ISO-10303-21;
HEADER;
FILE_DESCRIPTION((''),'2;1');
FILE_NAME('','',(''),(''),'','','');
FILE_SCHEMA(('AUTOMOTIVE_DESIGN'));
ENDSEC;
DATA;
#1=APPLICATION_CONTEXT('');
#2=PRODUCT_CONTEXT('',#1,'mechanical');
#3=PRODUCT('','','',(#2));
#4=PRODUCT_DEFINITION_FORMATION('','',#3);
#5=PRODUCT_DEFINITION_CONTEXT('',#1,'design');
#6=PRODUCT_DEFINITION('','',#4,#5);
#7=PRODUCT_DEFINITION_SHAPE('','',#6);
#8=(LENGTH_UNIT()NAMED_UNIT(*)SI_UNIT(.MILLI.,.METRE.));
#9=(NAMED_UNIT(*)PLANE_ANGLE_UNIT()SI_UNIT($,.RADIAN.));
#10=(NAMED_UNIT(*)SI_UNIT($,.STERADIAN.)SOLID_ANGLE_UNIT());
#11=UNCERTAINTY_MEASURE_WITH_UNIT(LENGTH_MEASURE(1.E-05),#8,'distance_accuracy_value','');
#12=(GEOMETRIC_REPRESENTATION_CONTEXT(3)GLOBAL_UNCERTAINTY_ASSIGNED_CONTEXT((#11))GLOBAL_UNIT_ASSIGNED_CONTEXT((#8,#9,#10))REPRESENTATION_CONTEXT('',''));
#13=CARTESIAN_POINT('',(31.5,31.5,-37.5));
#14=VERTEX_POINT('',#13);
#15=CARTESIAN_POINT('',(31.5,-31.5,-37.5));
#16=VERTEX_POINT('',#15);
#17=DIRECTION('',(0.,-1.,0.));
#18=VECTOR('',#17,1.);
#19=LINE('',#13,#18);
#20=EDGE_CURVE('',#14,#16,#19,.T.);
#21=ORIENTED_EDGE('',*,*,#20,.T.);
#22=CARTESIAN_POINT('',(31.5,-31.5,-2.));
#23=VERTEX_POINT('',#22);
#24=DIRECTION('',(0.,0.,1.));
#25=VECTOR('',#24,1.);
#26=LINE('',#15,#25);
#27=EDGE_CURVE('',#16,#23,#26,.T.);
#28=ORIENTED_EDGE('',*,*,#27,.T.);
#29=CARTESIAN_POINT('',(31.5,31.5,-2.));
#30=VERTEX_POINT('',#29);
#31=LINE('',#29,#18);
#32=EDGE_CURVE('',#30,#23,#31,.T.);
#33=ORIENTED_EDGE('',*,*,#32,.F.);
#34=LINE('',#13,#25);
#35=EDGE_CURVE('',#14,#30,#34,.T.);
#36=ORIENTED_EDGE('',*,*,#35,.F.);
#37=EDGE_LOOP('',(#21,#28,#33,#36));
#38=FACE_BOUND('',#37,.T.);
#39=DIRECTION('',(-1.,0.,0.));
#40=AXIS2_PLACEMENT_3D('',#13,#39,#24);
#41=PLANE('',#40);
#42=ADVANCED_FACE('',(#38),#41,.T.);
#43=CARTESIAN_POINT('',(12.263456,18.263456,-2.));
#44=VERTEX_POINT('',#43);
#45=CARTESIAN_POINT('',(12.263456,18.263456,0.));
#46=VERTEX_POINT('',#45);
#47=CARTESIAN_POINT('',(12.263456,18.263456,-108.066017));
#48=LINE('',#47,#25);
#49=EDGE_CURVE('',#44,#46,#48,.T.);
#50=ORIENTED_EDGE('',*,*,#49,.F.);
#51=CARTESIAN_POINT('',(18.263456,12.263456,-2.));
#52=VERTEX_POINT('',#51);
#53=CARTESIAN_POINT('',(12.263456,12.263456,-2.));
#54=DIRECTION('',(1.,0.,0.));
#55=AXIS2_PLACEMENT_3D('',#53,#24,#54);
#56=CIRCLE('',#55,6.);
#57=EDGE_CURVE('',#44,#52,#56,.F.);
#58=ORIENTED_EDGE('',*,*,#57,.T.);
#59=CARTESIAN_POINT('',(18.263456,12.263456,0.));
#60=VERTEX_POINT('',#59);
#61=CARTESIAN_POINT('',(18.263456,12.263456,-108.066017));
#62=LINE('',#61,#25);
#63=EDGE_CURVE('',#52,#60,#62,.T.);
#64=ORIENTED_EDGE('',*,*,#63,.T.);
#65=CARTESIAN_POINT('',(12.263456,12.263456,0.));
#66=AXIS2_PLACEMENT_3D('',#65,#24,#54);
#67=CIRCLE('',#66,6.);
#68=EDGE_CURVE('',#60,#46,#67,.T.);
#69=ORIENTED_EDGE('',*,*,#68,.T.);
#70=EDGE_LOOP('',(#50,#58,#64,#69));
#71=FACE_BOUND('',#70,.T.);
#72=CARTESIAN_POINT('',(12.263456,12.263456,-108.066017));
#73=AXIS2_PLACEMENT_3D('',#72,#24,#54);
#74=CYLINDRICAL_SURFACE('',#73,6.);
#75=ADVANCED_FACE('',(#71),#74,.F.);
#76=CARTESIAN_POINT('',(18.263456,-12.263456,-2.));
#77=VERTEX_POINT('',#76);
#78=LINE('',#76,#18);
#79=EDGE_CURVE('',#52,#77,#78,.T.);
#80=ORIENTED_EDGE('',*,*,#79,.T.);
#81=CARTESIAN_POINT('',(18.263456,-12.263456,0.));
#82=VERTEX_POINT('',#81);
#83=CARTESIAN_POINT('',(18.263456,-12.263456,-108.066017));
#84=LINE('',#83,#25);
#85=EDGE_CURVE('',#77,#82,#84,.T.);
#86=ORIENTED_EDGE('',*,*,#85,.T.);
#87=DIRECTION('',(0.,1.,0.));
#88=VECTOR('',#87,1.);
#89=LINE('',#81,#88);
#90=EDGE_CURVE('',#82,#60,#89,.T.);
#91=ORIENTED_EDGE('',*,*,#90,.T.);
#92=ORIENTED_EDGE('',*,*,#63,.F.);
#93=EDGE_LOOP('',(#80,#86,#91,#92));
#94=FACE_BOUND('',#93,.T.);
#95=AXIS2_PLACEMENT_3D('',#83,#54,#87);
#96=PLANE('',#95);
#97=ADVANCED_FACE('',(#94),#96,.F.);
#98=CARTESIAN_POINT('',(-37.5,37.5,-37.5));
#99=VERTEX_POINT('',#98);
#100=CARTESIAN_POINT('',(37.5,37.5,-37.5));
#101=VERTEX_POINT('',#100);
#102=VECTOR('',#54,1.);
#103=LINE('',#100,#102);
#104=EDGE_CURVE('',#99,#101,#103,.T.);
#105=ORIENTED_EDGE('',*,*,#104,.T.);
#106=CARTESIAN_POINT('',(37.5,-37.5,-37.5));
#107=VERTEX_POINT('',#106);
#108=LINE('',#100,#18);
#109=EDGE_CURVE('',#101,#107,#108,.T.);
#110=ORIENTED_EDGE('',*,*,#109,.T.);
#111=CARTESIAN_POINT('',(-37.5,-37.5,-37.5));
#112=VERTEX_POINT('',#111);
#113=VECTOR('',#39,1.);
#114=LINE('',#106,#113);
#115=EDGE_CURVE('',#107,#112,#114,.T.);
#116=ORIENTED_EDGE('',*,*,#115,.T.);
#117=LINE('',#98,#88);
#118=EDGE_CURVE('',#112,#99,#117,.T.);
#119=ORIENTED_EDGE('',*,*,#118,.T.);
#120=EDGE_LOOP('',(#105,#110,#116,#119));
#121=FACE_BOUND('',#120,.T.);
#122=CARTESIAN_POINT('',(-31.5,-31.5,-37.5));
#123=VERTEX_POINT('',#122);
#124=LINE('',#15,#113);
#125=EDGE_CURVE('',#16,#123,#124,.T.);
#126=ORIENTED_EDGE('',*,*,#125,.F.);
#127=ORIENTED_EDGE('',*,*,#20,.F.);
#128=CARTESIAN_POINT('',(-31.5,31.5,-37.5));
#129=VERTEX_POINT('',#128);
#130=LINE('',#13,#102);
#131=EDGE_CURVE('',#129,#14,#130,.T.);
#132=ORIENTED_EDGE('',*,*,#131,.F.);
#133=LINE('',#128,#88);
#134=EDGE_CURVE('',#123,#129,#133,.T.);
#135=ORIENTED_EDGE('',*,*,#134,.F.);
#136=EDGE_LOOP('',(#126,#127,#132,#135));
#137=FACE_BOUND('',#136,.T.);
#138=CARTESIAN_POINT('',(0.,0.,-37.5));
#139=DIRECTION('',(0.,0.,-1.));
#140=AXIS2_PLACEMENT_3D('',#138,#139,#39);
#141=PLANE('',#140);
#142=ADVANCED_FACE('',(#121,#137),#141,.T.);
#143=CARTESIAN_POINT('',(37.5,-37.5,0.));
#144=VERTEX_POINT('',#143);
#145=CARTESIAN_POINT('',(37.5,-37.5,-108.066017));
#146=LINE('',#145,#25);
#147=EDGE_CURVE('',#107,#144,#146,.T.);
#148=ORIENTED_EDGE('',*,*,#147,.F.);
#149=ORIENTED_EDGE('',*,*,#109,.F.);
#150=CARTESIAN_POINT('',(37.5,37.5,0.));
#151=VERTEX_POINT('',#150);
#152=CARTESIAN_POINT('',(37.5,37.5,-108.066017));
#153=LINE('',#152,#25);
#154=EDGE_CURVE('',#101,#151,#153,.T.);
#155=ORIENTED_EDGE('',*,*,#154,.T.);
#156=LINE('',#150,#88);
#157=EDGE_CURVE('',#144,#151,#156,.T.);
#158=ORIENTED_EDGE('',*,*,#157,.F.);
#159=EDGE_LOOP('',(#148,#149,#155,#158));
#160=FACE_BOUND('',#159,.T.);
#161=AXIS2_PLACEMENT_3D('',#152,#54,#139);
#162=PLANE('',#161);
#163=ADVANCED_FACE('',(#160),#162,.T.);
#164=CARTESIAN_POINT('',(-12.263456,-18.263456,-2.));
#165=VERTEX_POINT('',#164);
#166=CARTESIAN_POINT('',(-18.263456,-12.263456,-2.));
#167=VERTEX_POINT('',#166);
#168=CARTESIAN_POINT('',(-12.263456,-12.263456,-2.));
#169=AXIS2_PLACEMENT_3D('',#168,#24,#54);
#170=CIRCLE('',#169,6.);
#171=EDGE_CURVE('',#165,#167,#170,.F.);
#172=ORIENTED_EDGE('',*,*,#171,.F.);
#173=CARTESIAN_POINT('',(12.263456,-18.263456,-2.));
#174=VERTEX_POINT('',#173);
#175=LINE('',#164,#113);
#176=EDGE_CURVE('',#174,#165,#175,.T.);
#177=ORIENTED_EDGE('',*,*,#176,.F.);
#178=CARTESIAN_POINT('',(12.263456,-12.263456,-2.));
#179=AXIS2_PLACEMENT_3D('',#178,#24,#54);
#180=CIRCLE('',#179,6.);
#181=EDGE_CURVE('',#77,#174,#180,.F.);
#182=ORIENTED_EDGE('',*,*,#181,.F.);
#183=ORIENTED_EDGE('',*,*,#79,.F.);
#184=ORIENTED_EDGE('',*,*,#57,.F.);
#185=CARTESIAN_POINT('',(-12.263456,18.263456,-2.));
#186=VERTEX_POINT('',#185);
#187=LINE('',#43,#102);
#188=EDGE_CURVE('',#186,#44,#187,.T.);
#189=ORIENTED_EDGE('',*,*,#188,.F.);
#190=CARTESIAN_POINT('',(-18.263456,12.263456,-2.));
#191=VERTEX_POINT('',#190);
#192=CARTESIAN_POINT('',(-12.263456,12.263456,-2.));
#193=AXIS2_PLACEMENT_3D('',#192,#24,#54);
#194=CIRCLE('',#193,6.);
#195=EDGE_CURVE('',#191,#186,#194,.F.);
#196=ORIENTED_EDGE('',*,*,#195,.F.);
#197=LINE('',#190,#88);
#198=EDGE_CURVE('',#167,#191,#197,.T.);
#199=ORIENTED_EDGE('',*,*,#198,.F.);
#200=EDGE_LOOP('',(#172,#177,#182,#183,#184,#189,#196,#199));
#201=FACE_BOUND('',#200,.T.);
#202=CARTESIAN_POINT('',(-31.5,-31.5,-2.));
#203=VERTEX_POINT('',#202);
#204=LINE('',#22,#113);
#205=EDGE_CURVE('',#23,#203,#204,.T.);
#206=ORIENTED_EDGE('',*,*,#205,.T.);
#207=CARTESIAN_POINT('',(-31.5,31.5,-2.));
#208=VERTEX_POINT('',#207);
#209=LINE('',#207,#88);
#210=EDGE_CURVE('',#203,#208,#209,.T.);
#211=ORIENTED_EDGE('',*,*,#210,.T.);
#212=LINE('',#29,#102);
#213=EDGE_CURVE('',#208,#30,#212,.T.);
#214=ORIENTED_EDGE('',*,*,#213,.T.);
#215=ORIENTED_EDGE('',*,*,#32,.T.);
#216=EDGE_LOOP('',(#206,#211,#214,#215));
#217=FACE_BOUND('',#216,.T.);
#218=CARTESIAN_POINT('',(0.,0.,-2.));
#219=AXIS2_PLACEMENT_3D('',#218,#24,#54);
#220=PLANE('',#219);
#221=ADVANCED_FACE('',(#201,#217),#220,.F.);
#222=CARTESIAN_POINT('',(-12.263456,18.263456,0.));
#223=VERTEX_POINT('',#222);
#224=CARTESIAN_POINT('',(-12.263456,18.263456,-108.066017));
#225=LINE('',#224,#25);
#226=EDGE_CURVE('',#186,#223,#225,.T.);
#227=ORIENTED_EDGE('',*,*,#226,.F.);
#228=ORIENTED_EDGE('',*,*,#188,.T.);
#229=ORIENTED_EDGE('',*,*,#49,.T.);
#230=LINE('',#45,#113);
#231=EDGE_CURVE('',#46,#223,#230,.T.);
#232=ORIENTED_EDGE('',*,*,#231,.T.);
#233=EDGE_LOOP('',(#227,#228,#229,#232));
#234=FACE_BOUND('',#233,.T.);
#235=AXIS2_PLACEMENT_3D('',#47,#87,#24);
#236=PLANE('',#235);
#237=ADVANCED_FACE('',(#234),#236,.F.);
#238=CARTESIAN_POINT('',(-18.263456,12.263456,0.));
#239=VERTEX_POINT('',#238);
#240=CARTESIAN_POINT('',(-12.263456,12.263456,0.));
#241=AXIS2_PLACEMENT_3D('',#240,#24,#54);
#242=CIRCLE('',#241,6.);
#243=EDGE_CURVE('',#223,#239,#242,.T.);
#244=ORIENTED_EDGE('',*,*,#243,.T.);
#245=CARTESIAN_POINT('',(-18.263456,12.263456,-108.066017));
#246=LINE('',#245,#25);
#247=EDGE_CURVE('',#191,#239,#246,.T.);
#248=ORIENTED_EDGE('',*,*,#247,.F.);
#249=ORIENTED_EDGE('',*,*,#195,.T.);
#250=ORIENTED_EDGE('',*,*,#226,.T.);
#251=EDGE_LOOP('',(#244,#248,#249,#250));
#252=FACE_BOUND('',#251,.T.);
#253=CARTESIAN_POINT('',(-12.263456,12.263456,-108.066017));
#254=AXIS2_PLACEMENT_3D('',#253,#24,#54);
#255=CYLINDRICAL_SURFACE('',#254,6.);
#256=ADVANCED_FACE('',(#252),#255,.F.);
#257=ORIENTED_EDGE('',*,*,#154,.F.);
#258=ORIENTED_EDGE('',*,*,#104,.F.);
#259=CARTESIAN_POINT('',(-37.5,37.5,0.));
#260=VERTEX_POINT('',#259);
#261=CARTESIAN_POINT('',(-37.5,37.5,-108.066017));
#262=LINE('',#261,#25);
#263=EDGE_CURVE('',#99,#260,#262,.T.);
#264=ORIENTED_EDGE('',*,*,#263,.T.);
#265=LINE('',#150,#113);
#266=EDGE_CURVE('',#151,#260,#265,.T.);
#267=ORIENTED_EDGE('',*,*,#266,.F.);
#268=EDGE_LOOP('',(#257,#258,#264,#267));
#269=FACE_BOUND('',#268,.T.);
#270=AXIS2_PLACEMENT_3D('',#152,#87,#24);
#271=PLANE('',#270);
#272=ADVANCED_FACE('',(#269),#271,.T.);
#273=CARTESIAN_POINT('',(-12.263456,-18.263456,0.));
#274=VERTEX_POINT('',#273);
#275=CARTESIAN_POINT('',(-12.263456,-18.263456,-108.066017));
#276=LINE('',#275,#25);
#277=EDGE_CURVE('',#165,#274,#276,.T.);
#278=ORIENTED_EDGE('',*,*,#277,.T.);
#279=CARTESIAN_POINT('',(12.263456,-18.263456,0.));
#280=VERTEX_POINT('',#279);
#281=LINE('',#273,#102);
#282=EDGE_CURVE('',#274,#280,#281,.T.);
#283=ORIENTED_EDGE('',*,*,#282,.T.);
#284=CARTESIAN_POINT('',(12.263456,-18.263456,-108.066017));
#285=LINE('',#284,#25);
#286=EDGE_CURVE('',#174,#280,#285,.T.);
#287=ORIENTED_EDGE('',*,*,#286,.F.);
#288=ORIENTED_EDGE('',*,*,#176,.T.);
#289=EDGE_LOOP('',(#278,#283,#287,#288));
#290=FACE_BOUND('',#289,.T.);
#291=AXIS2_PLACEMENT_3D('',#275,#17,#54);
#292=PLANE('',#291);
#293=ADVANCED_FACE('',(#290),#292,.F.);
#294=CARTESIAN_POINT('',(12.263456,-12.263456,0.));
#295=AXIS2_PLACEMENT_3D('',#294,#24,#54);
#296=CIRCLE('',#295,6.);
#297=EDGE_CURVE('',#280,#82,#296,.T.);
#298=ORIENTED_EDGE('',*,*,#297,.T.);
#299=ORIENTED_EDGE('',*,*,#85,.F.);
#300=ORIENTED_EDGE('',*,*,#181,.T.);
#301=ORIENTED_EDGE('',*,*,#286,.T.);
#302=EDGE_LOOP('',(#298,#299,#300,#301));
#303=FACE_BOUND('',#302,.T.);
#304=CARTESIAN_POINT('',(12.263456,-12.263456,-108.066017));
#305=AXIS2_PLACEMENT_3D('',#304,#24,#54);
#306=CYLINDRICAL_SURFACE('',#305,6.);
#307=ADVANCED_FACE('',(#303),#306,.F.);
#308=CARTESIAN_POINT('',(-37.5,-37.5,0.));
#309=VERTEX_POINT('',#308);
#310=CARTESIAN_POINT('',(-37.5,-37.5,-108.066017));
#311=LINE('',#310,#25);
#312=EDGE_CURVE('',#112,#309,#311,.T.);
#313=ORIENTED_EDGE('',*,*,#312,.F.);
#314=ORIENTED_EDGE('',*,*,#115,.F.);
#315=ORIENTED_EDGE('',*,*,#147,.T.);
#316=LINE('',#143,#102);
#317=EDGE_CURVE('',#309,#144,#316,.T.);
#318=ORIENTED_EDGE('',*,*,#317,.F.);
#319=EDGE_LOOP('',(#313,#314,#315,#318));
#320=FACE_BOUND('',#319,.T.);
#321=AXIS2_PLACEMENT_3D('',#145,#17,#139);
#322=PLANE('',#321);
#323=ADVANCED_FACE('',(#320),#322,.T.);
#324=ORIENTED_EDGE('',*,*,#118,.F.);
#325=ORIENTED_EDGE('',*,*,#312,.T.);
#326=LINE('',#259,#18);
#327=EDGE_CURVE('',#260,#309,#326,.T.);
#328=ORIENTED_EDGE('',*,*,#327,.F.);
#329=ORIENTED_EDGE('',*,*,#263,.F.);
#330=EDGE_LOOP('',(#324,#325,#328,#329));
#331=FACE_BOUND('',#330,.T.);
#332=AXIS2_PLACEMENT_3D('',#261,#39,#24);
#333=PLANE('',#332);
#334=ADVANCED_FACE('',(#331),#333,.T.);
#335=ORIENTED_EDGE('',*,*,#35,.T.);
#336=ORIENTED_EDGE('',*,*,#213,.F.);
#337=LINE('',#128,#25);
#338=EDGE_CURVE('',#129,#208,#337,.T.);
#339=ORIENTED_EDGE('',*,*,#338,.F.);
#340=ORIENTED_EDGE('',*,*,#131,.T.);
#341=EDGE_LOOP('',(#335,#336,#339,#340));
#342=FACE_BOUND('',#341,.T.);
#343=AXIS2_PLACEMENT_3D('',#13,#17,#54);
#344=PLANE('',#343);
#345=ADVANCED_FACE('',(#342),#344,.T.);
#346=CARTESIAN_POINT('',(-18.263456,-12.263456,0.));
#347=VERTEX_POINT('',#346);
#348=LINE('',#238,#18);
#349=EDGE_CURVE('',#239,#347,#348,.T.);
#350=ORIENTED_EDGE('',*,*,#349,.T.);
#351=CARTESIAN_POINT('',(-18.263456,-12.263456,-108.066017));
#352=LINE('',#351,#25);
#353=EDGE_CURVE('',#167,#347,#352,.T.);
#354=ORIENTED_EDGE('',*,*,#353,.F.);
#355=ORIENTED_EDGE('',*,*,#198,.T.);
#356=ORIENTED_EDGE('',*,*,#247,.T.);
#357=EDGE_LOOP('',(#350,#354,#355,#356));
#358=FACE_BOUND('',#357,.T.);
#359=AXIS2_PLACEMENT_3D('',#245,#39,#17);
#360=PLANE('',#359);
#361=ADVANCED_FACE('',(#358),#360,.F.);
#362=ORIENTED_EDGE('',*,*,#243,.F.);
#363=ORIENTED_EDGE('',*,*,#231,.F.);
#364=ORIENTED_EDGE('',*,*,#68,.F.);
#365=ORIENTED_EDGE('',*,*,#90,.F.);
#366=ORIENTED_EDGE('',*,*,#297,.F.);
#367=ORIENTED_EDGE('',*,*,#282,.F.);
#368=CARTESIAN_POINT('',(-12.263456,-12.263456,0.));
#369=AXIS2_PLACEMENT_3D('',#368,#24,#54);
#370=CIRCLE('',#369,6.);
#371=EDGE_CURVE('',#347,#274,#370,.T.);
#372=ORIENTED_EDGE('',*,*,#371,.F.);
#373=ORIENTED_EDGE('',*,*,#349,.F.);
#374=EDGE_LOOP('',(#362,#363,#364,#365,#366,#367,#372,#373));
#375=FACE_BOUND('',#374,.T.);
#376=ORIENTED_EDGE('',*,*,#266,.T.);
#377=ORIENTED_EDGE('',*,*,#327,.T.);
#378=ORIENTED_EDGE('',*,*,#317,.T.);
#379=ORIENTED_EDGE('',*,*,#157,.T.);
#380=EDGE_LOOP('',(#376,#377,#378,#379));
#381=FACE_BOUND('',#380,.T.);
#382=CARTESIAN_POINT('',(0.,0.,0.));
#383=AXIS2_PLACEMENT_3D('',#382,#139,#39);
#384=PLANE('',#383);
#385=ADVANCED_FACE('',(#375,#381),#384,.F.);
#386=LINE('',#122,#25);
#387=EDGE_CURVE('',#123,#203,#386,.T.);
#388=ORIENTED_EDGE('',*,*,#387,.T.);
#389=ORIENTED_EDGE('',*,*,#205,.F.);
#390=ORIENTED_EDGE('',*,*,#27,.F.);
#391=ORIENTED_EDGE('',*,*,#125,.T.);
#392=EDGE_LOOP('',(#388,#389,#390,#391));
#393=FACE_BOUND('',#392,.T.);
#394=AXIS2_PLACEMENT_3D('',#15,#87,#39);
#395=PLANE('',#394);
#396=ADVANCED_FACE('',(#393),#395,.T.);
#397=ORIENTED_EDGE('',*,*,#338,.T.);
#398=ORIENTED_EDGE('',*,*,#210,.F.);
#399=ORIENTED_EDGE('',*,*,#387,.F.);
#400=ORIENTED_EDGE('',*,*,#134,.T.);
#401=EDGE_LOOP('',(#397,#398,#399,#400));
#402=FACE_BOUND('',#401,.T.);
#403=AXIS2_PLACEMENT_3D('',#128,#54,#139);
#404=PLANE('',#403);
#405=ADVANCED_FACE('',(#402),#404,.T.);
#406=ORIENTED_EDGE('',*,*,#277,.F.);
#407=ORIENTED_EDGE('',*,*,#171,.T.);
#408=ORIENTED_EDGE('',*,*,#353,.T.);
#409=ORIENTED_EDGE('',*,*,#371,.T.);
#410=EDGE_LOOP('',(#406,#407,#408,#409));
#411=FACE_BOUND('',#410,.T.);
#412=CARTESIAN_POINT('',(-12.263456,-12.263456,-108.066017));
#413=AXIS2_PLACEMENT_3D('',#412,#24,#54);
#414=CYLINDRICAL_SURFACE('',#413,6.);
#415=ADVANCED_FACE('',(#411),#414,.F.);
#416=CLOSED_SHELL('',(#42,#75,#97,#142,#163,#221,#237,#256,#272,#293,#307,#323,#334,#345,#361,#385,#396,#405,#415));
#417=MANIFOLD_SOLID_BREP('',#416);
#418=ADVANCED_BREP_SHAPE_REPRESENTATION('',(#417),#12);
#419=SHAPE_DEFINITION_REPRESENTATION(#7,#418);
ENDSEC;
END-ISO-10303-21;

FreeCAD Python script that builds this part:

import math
import FreeCAD as App
import Part
import Sketcher
from FreeCAD import Vector
Q = App.Units.Quantity


def add_polygon(sketch, points):
    """Adds a closed chain of lines whose ends are joined by coincident constraints."""
    first, n = sketch.GeometryCount, len(points)
    for a, b in zip(points, points[1:] + points[:1]):
        sketch.addGeometry(Part.LineSegment(App.Vector(*a, 0), App.Vector(*b, 0)), False)
    for i in range(n):
        sketch.addConstraint(Sketcher.Constraint("Coincident", first + i, 2, first + (i + 1) % n, 1))

doc = App.newDocument("Part")
body = doc.addObject("PartDesign::Body", "Body")

# Sketch on XY plane
sketch1 = body.newObject("Sketcher::SketchObject", "Sketch")
sketch1.AttachmentSupport = (doc.getObject("XY_Plane"), [""])
sketch1.MapMode = "FlatFace"
add_polygon(sketch1, [(-37.5, 37.5), (-37.5, -37.5), (37.5, -37.5), (37.5, 37.5)])  # lines 0-3
sketch1.addGeometry(Part.LineSegment(Vector(-12.263456, 18.263456, 0), Vector(12.263456, 18.263456, 0)), False)  # 4
sketch1.addGeometry(Part.ArcOfCircle(Part.Circle(Vector(12.263456, 12.263456, 0), Vector(0, 0, 1), 6), math.radians(0), math.radians(90)), False)  # 5
sketch1.addGeometry(Part.LineSegment(Vector(18.263456, 12.263456, 0), Vector(18.263456, -12.263456, 0)), False)  # 6
sketch1.addGeometry(Part.ArcOfCircle(Part.Circle(Vector(12.263456, -12.263456, 0), Vector(0, 0, 1), 6), math.radians(-90), math.radians(0)), False)  # 7
sketch1.addGeometry(Part.LineSegment(Vector(12.263456, -18.263456, 0), Vector(-12.263456, -18.263456, 0)), False)  # 8
sketch1.addGeometry(Part.ArcOfCircle(Part.Circle(Vector(-12.263456, -12.263456, 0), Vector(0, 0, 1), 6), math.radians(180), math.radians(270)), False)  # 9
sketch1.addGeometry(Part.LineSegment(Vector(-18.263456, -12.263456, 0), Vector(-18.263456, 12.263456, 0)), False)  # 10
sketch1.addGeometry(Part.ArcOfCircle(Part.Circle(Vector(-12.263456, 12.263456, 0), Vector(0, 0, 1), 6), math.radians(90), math.radians(180)), False)  # 11
sketch1.addConstraint(Sketcher.Constraint("Tangent", 4, 2, 5, 2))
sketch1.addConstraint(Sketcher.Constraint("Tangent", 5, 1, 6, 1))
sketch1.addConstraint(Sketcher.Constraint("Tangent", 6, 2, 7, 2))
sketch1.addConstraint(Sketcher.Constraint("Tangent", 7, 1, 8, 1))
sketch1.addConstraint(Sketcher.Constraint("Tangent", 8, 2, 9, 2))
sketch1.addConstraint(Sketcher.Constraint("Tangent", 9, 1, 10, 1))
sketch1.addConstraint(Sketcher.Constraint("Tangent", 10, 2, 11, 2))
sketch1.addConstraint(Sketcher.Constraint("Tangent", 11, 1, 4, 1))
sketch1.addConstraint(Sketcher.Constraint("Vertical", 0))
sketch1.addConstraint(Sketcher.Constraint("Horizontal", 1))
sketch1.addConstraint(Sketcher.Constraint("Vertical", 2))
sketch1.addConstraint(Sketcher.Constraint("Horizontal", 3))
sketch1.addConstraint(Sketcher.Constraint("Horizontal", 4))
sketch1.addConstraint(Sketcher.Constraint("Vertical", 6))
sketch1.addConstraint(Sketcher.Constraint("Horizontal", 8))
sketch1.addConstraint(Sketcher.Constraint("Vertical", 10))
sketch1.addConstraint(Sketcher.Constraint("Equal", 5, 7))
sketch1.addConstraint(Sketcher.Constraint("Equal", 7, 9))
sketch1.addConstraint(Sketcher.Constraint("Equal", 9, 11))
sketch1.addConstraint(Sketcher.Constraint("Symmetric", 5, 3, 9, 3, -1, 1))
sketch1.addConstraint(Sketcher.Constraint("Symmetric", 0, 2, 2, 2, -1, 1))
sketch1.addConstraint(Sketcher.Constraint("Equal", 3, 0))
sketch1.addConstraint(Sketcher.Constraint("Equal", 8, 6))
sketch1.addConstraint(Sketcher.Constraint("Radius", 5, Q("6 mm")))
sketch1.addConstraint(Sketcher.Constraint("DistanceX", 1, 1, 1, 2, Q("75 mm")))
sketch1.addConstraint(Sketcher.Constraint("DistanceX", 4, 1, 4, 2, Q("24.526912 mm")))
pad1 = body.newObject("PartDesign::Pad", "Pad")
pad1.Profile = sketch1
pad1.Length = 2
pad1.Reversed = True

# Sketch on XY plane
sketch2 = body.newObject("Sketcher::SketchObject", "Sketch001")
sketch2.AttachmentSupport = (doc.getObject("XY_Plane"), [""])
sketch2.MapMode = "FlatFace"
sketch2.AttachmentOffset = App.Placement(Vector(0, 0, -2), App.Rotation())
add_polygon(sketch2, [(37.5, 37.5), (37.5, -37.5), (-37.5, -37.5), (-37.5, 37.5)])  # lines 0-3
add_polygon(sketch2, [(-31.5, -31.5), (31.5, -31.5), (31.5, 31.5), (-31.5, 31.5)])  # lines 4-7
sketch2.addConstraint(Sketcher.Constraint("Vertical", 0))
sketch2.addConstraint(Sketcher.Constraint("Horizontal", 1))
sketch2.addConstraint(Sketcher.Constraint("Vertical", 2))
sketch2.addConstraint(Sketcher.Constraint("Horizontal", 3))
sketch2.addConstraint(Sketcher.Constraint("Horizontal", 4))
sketch2.addConstraint(Sketcher.Constraint("Vertical", 5))
sketch2.addConstraint(Sketcher.Constraint("Horizontal", 6))
sketch2.addConstraint(Sketcher.Constraint("Vertical", 7))
sketch2.addConstraint(Sketcher.Constraint("Symmetric", 0, 2, 2, 2, -1, 1))
sketch2.addConstraint(Sketcher.Constraint("Symmetric", 4, 2, 6, 2, -1, 1))
sketch2.addConstraint(Sketcher.Constraint("Equal", 3, 0))
sketch2.addConstraint(Sketcher.Constraint("Equal", 6, 5))
sketch2.addConstraint(Sketcher.Constraint("DistanceX", 1, 2, 1, 1, Q("75 mm")))
sketch2.addConstraint(Sketcher.Constraint("DistanceX", 4, 1, 4, 2, Q("63 mm")))
pad2 = body.newObject("PartDesign::Pad", "Pad001")
pad2.Profile = sketch2
pad2.Length = 35.5
pad2.Reversed = True

doc.recompute()
